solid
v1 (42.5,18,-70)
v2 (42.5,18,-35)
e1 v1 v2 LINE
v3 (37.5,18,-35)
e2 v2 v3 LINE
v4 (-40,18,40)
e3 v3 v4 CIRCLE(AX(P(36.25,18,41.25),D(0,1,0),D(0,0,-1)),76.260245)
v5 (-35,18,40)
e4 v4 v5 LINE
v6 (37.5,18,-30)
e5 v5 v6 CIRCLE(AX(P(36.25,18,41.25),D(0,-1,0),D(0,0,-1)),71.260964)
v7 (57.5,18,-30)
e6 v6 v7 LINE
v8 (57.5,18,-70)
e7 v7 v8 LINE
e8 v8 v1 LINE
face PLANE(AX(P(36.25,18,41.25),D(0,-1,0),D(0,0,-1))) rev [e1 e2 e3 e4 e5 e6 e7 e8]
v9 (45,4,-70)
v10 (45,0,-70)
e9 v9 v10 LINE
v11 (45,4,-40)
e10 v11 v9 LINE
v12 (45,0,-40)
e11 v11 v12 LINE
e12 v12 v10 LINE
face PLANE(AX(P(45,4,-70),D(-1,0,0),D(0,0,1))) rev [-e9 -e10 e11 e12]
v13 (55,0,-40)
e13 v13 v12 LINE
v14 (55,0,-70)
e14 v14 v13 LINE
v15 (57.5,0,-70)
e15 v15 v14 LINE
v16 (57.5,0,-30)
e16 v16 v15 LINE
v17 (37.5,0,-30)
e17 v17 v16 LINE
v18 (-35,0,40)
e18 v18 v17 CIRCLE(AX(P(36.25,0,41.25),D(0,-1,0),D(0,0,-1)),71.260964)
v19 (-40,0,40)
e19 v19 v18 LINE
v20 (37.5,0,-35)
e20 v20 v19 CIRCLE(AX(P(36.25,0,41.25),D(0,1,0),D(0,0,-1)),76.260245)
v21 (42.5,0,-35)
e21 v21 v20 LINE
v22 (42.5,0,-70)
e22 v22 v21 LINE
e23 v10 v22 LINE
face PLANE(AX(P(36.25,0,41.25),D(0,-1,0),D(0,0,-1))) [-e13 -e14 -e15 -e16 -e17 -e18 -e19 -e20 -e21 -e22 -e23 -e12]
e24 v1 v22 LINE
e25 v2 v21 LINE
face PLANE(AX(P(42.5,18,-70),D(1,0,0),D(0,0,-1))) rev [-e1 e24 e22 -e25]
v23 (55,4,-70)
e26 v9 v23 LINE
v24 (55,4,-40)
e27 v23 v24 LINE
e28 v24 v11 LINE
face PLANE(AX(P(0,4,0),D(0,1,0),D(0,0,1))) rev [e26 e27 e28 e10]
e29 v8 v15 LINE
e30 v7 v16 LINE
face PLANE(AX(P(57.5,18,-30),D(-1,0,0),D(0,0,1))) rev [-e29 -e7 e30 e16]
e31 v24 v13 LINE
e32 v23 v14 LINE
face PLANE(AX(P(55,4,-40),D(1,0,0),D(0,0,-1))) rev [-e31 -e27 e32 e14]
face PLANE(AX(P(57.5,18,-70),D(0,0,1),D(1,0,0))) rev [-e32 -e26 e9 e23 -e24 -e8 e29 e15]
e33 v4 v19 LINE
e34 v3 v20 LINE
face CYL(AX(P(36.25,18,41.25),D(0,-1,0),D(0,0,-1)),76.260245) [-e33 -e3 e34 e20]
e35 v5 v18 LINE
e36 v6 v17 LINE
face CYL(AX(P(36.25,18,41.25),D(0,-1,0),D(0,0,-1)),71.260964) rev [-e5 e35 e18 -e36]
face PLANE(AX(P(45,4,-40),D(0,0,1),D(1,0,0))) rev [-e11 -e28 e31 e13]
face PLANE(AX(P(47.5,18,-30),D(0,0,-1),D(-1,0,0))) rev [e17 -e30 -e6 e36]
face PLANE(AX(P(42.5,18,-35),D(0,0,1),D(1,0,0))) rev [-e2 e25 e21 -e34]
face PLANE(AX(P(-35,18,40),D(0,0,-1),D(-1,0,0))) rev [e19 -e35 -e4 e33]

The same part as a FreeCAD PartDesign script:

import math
import FreeCAD as App
import Part
import Sketcher

V = App.Vector

doc = App.newDocument("Part")
params = doc.addObject("Spreadsheet::Sheet", "Params")
for row, (alias, value) in enumerate([
    ("sketch1_width", "15 mm"),
    ("sketch1_width2", "5 mm"),
    ("sketch1_height", "40 mm"),
    ("pad1_length", "18 mm"),
    ("sketch2_width", "10 mm"),
    ("sketch2_height", "30 mm"),
    ("pocket1_length", "4 mm"),
], start=1):
    params.set(f"A{row}", alias)
    params.set(f"B{row}", "=" + value)
    params.setAlias(f"B{row}", alias)

body = doc.addObject("PartDesign::Body", "Body")

# Sketch on XZ plane
sketch1 = doc.addObject("Sketcher::SketchObject", "Sketch")
body.addObject(sketch1)
sketch1.AttachmentSupport = (doc.XZ_Plane, [""])
sketch1.MapMode = "FlatFace"
sketch1.addGeometry(Part.LineSegment(V(58, -30, 0), V(58, -70, 0)), False)
sketch1.addGeometry(Part.LineSegment(V(58, -70, 0), V(42, -70, 0)), False)
sketch1.addGeometry(Part.LineSegment(V(42, -70, 0), V(42, -35, 0)), False)
sketch1.addGeometry(Part.LineSegment(V(42, -35, 0), V(38, -35, 0)), False)
sketch1.addGeometry(Part.ArcOfCircle(Part.Circle(V(36, 41, 0), V(0, 0, 1), 76), math.radians(-179), math.radians(-89)), False)
sketch1.addGeometry(Part.LineSegment(V(-40, 40, 0), V(-35, 40, 0)), False)
sketch1.addGeometry(Part.ArcOfCircle(Part.Circle(V(36, 41, 0), V(0, 0, 1), 71), math.radians(-179), math.radians(-89)), False)
sketch1.addGeometry(Part.LineSegment(V(38, -30, 0), V(58, -30, 0)), False)
sketch1.addConstraint(Sketcher.Constraint("Coincident", 0, 2, 1, 1))
sketch1.addConstraint(Sketcher.Constraint("Coincident", 1, 2, 2, 1))
sketch1.addConstraint(Sketcher.Constraint("Coincident", 2, 2, 3, 1))
sketch1.addConstraint(Sketcher.Constraint("Coincident", 3, 2, 4, 2))
sketch1.addConstraint(Sketcher.Constraint("Coincident", 4, 1, 5, 1))
sketch1.addConstraint(Sketcher.Constraint("Coincident", 5, 2, 6, 1))
sketch1.addConstraint(Sketcher.Constraint("Coincident", 6, 2, 7, 1))
sketch1.addConstraint(Sketcher.Constraint("Coincident", 7, 2, 0, 1))
sketch1.addConstraint(Sketcher.Constraint("Vertical", 0))
sketch1.addConstraint(Sketcher.Constraint("Horizontal", 1))
sketch1.addConstraint(Sketcher.Constraint("Vertical", 2))
sketch1.addConstraint(Sketcher.Constraint("Horizontal", 3))
sketch1.addConstraint(Sketcher.Constraint("Horizontal", 5))
sketch1.addConstraint(Sketcher.Constraint("Horizontal", 7))
sketch1.addConstraint(Sketcher.Constraint("Coincident", 6, 3, 4, 3))
sketch1.addConstraint(Sketcher.Constraint("Vertical", 3, 2, 6, 2))
sketch1.addConstraint(Sketcher.Constraint("Equal", 3, 5))
sketch1.addConstraint(Sketcher.Constraint("DistanceX", 1, 2, 1, 1, 15.0))
sketch1.addConstraint(Sketcher.Constraint("DistanceX", 3, 2, 3, 1, 5.0))
sketch1.addConstraint(Sketcher.Constraint("DistanceY", 0, 2, 0, 1, 40.0))
sketch1.addConstraint(Sketcher.Constraint("DistanceY", 0, 2, -1, 1, 70.0))
sketch1.addConstraint(Sketcher.Constraint("DistanceX", 4, 1, -1, 1, 40.0))
sketch1.addConstraint(Sketcher.Constraint("DistanceY", -1, 1, 4, 1, 40.0))
sketch1.addConstraint(Sketcher.Constraint("DistanceX", -1, 1, 0, 2, 57.5))
sketch1.addConstraint(Sketcher.Constraint("DistanceX", -1, 1, 4, 3, 36.25))
sketch1.setExpression("Constraints[17]", "Params.sketch1_width")
sketch1.setExpression("Constraints[18]", "Params.sketch1_width2")
sketch1.setExpression("Constraints[19]", "Params.sketch1_height")
pad1 = doc.addObject("PartDesign::Pad", "Pad")
body.addObject(pad1)
pad1.Profile = sketch1
pad1.setExpression("Length", "Params.pad1_length")
pad1.Reversed = True

# Sketch on XZ plane
sketch2 = doc.addObject("Sketcher::SketchObject", "Sketch001")
body.addObject(sketch2)
sketch2.AttachmentSupport = (doc.XZ_Plane, [""])
sketch2.MapMode = "FlatFace"
sketch2.addGeometry(Part.LineSegment(V(45, -70, 0), V(55, -70, 0)), False)
sketch2.addGeometry(Part.LineSegment(V(55, -70, 0), V(55, -40, 0)), False)
sketch2.addGeometry(Part.LineSegment(V(55, -40, 0), V(45, -40, 0)), False)
sketch2.addGeometry(Part.LineSegment(V(45, -40, 0), V(45, -70, 0)), False)
sketch2.addConstraint(Sketcher.Constraint("Coincident", 0, 2, 1, 1))
sketch2.addConstraint(Sketcher.Constraint("Coincident", 1, 2, 2, 1))
sketch2.addConstraint(Sketcher.Constraint("Coincident", 2, 2, 3, 1))
sketch2.addConstraint(Sketcher.Constraint("Coincident", 3, 2, 0, 1))
sketch2.addConstraint(Sketcher.Constraint("Horizontal", 0))
sketch2.addConstraint(Sketcher.Constraint("Vertical", 1))
sketch2.addConstraint(Sketcher.Constraint("Horizontal", 2))
sketch2.addConstraint(Sketcher.Constraint("Vertical", 3))
sketch2.addConstraint(Sketcher.Constraint("DistanceX", 0, 1, 0, 2, 10.0))
sketch2.addConstraint(Sketcher.Constraint("DistanceY", 1, 1, 1, 2, 30.0))
sketch2.addConstraint(Sketcher.Constraint("DistanceX", -1, 1, 0, 2, 55.0))
sketch2.addConstraint(Sketcher.Constraint("DistanceY", 0, 2, -1, 1, 70.0))
sketch2.setExpression("Constraints[8]", "Params.sketch2_width")
sketch2.setExpression("Constraints[9]", "Params.sketch2_height")
pocket1 = doc.addObject("PartDesign::Pocket", "Pocket")
body.addObject(pocket1)
pocket1.Profile = sketch2
pocket1.setExpression("Length", "Params.pocket1_length")

doc.recompute()
